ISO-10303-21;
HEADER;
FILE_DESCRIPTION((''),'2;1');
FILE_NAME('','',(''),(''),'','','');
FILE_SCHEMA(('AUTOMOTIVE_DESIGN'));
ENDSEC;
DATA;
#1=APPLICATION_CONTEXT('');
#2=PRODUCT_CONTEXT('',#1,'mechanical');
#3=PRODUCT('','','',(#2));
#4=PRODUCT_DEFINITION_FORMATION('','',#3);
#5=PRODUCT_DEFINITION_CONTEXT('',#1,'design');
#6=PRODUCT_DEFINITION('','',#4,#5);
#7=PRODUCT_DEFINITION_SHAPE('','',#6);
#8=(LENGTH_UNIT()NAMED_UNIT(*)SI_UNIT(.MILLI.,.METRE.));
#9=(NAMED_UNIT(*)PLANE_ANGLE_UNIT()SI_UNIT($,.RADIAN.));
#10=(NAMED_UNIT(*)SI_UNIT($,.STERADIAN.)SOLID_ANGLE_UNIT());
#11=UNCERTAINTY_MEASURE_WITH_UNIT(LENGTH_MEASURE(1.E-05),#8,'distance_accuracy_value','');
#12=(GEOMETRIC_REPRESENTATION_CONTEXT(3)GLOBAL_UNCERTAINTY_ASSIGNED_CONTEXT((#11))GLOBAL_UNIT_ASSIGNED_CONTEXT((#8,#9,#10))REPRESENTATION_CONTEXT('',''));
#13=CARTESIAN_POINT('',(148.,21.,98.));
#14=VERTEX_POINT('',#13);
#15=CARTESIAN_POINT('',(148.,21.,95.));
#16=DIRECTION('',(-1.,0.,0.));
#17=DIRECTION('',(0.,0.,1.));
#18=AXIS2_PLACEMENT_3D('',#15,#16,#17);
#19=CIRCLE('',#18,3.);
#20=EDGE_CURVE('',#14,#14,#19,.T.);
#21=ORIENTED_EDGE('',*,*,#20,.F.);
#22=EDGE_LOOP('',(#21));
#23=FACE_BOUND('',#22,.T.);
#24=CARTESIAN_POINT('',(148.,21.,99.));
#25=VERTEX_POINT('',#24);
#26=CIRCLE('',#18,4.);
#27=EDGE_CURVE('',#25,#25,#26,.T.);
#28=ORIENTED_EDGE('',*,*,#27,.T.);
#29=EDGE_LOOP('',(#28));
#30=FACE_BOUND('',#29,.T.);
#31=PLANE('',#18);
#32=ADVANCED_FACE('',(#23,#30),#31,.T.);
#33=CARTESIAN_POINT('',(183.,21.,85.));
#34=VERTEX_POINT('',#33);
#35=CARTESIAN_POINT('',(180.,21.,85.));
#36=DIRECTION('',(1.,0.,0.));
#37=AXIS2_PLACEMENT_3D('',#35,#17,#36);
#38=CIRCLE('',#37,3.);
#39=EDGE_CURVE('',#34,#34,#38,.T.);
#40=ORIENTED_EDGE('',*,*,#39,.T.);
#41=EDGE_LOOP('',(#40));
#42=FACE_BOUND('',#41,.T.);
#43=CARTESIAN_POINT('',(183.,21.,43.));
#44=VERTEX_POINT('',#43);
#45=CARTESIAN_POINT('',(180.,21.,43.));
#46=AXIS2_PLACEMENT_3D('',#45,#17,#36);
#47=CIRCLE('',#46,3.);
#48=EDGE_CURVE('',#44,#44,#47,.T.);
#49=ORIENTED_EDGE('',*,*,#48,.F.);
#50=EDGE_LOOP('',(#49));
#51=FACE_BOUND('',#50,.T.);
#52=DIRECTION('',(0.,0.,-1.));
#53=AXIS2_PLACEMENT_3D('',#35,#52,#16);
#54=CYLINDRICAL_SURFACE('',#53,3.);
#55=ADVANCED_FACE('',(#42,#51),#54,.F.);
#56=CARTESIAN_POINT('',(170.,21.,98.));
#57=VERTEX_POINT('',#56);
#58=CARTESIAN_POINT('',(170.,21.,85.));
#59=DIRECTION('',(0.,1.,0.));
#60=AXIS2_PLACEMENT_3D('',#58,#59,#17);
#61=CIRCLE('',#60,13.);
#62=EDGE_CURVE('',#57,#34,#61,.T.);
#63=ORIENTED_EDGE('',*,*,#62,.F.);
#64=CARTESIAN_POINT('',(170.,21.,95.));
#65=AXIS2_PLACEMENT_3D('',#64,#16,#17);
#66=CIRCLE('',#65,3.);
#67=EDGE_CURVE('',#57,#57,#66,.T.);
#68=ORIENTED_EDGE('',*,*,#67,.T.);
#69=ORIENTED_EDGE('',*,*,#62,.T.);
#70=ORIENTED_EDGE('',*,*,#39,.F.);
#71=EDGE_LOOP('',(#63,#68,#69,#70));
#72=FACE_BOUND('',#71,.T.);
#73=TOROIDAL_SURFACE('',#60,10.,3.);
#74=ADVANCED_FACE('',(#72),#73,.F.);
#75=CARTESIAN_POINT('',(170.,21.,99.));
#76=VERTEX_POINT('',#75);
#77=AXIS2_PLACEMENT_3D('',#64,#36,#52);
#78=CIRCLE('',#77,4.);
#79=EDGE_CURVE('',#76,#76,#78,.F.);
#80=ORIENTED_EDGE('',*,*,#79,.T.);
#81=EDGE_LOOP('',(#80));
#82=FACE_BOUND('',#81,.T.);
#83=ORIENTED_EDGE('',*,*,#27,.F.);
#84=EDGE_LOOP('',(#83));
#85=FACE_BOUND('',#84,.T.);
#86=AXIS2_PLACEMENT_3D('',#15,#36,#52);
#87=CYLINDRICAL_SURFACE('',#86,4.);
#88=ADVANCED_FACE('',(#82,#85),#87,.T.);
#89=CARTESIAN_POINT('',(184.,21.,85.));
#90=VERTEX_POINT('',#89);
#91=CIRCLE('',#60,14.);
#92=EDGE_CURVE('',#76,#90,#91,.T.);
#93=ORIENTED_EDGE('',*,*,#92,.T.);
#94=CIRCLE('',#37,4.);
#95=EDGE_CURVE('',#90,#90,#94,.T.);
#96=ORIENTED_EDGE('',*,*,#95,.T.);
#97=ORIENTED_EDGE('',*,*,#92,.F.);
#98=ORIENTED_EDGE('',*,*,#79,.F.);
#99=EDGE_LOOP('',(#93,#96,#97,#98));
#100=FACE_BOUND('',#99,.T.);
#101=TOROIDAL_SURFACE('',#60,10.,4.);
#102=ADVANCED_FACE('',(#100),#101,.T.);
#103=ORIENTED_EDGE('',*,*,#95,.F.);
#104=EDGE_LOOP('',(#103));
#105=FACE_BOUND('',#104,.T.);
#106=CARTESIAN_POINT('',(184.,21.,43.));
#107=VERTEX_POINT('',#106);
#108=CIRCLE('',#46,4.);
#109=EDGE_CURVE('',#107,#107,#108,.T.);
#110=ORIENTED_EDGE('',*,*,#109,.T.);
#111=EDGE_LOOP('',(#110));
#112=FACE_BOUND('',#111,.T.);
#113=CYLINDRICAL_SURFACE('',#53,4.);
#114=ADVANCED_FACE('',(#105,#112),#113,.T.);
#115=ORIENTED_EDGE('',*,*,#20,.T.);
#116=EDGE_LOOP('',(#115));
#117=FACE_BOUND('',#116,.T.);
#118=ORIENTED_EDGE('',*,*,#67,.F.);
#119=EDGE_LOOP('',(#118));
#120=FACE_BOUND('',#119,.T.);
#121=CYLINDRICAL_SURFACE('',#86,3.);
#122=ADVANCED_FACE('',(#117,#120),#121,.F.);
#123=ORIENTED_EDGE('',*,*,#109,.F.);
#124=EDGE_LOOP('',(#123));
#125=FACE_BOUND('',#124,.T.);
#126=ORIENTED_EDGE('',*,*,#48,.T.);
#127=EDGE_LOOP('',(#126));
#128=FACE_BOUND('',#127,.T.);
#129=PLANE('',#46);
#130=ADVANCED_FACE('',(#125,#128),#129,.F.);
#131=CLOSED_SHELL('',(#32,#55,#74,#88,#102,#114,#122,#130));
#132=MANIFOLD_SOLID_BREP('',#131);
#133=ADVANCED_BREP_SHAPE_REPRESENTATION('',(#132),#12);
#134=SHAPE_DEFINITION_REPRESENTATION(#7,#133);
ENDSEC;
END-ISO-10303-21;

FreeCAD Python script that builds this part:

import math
import FreeCAD as App
import Part
import Sketcher
from FreeCAD import Vector
Q = App.Units.Quantity

doc = App.newDocument("Part")
body = doc.addObject("PartDesign::Body", "Body")

sketch1 = body.newObject("Sketcher::SketchObject", "Sketch")
sketch1.AttachmentSupport = (doc.getObject("YZ_Plane"), [""])
sketch1.MapMode = "FlatFace"
sketch1.AttachmentOffset = App.Placement(Vector(0, 0, 148), App.Rotation())
sketch1.addGeometry(Part.Circle(Vector(21, 95, 0), Vector(0, 0, 1), 4), False)
sketch1.addGeometry(Part.Circle(Vector(21, 95, 0), Vector(0, 0, 1), 3), False)
sketch1.addConstraint(Sketcher.Constraint("Coincident", 1, 3, 0, 3))
sketch1.addConstraint(Sketcher.Constraint("Diameter", 0, Q("8 mm")))
sketch1.addConstraint(Sketcher.Constraint("Diameter", 1, Q("6 mm")))
sketch1.addConstraint(Sketcher.Constraint("DistanceX", -1, 1, 0, 3, Q("21 mm")))
sketch1.addConstraint(Sketcher.Constraint("DistanceY", -1, 1, 0, 3, Q("95 mm")))

sketch2 = body.newObject("Sketcher::SketchObject", "Sketch001")
sketch2.AttachmentSupport = (doc.getObject("XZ_Plane"), [""])
sketch2.MapMode = "FlatFace"
sketch2.AttachmentOffset = App.Placement(Vector(0, 0, -21), App.Rotation())
sketch2.addGeometry(Part.LineSegment(Vector(148, 95, 0), Vector(170, 95, 0)), False)
sketch2.addGeometry(Part.ArcOfCircle(Part.Circle(Vector(170, 85, 0), Vector(0, 0, 1), 10), math.radians(0), math.radians(90)), False)
sketch2.addGeometry(Part.LineSegment(Vector(180, 85, 0), Vector(180, 43, 0)), False)
sketch2.addConstraint(Sketcher.Constraint("Tangent", 0, 2, 1, 2))
sketch2.addConstraint(Sketcher.Constraint("Tangent", 1, 1, 2, 1))
sketch2.addConstraint(Sketcher.Constraint("Horizontal", 0))
sketch2.addConstraint(Sketcher.Constraint("Vertical", 2))
sketch2.addConstraint(Sketcher.Constraint("Radius", 1, Q("10 mm")))
sketch2.addConstraint(Sketcher.Constraint("DistanceX", 0, 1, 0, 2, Q("22 mm")))
sketch2.addConstraint(Sketcher.Constraint("DistanceY", 2, 2, 2, 1, Q("42 mm")))
sketch2.addConstraint(Sketcher.Constraint("DistanceX", -1, 1, 1, 3, Q("170 mm")))
sketch2.addConstraint(Sketcher.Constraint("DistanceY", -1, 1, 1, 3, Q("85 mm")))
doc.recompute()

additivepipe = body.newObject("PartDesign::AdditivePipe", "AdditivePipe")
additivepipe.Profile = sketch1
additivepipe.Spine = (sketch2, ["Edge1", "Edge2", "Edge3"])

doc.recompute()
